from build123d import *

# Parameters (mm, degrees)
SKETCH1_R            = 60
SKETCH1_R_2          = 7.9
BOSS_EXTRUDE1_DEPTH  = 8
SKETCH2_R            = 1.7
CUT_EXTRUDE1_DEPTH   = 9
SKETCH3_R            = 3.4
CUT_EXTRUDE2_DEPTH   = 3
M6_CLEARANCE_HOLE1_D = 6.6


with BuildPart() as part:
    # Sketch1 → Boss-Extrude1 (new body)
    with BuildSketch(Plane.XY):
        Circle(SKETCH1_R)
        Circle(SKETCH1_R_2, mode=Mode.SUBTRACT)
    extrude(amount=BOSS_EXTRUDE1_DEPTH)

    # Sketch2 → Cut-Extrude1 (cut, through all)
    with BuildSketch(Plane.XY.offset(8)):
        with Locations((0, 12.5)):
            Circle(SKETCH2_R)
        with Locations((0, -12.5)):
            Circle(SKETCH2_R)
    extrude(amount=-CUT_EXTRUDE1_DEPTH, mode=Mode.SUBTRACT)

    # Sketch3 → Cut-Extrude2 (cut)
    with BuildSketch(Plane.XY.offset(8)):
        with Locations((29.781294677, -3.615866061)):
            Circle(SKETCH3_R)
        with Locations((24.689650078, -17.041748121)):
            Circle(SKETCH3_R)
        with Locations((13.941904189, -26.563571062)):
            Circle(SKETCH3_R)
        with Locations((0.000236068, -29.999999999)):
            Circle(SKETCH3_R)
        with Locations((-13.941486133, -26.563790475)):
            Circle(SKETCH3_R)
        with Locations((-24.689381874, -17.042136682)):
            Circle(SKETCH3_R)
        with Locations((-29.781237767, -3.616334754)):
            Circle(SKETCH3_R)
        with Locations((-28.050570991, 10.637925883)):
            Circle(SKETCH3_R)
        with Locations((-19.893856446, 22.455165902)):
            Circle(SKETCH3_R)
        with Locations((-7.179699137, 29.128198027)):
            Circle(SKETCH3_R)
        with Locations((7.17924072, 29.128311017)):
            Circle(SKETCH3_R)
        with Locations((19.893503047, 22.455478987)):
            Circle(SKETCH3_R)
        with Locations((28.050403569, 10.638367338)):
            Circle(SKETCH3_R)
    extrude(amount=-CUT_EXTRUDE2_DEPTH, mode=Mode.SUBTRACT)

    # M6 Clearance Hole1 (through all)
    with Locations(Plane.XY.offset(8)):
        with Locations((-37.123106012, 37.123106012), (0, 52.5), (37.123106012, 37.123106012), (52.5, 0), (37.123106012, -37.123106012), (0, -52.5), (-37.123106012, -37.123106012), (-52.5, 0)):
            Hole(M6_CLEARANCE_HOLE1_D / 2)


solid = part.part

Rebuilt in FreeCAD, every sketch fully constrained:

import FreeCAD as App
import Part
import Sketcher

V = App.Vector

doc = App.newDocument("Part")
params = doc.addObject("Spreadsheet::Sheet", "Params")
for row, (alias, value) in enumerate([
    ("sketch1_diameter", "120 mm"),
    ("sketch1_diameter2", "15.8 mm"),
    ("pad1_length", "8 mm"),
    ("sketch2_diameter", "3.4 mm"),
    ("sketch3_diameter", "6.8 mm"),
    ("pocket2_length", "3 mm"),
    ("sketch4_diameter", "6.6 mm"),
    ("hole_diameter", "6.6 mm"),
], start=1):
    params.set(f"A{row}", alias)
    params.set(f"B{row}", "=" + value)
    params.setAlias(f"B{row}", alias)

body = doc.addObject("PartDesign::Body", "Body")

# Sketch on XY plane
sketch1 = doc.addObject("Sketcher::SketchObject", "Sketch")
body.addObject(sketch1)
sketch1.AttachmentSupport = (doc.XY_Plane, [""])
sketch1.MapMode = "FlatFace"
sketch1.addGeometry([
    Part.Circle(V(0, 0, 0), V(0, 0, 1), 60),
    Part.Circle(V(0, 0, 0), V(0, 0, 1), 7.9),
], False)
sketch1.addConstraint([
    Sketcher.Constraint("Coincident", 0, 3, -1, 1),
    Sketcher.Constraint("Coincident", 1, 3, -1, 1),
    Sketcher.Constraint("Diameter", 0, 120.0),
    Sketcher.Constraint("Diameter", 1, 15.8),
])
sketch1.setExpression("Constraints[2]", "Params.sketch1_diameter")
sketch1.setExpression("Constraints[3]", "Params.sketch1_diameter2")
pad1 = doc.addObject("PartDesign::Pad", "Pad")
body.addObject(pad1)
pad1.Profile = sketch1
pad1.setExpression("Length", "Params.pad1_length")

# Sketch on XY plane
sketch2 = doc.addObject("Sketcher::SketchObject", "Sketch001")
body.addObject(sketch2)
sketch2.AttachmentSupport = (doc.XY_Plane, [""])
sketch2.MapMode = "FlatFace"
sketch2.AttachmentOffset = App.Placement(V(0, 0, 8), App.Rotation())
sketch2.addGeometry([
    Part.Circle(V(0, 12.5, 0), V(0, 0, 1), 1.7),
    Part.Circle(V(0, -12.5, 0), V(0, 0, 1), 1.7),
], False)
sketch2.addConstraint([
    Sketcher.Constraint("Equal", 0, 1),
    Sketcher.Constraint("Symmetric", 0, 3, 1, 3, -1, 1),
    Sketcher.Constraint("PointOnObject", 0, 3, -2),
    Sketcher.Constraint("Diameter", 0, 3.4),
    Sketcher.Constraint("DistanceY", 1, 3, 0, 3, 25.0),
])
sketch2.setExpression("Constraints[3]", "Params.sketch2_diameter")
pocket1 = doc.addObject("PartDesign::Pocket", "Pocket")
body.addObject(pocket1)
pocket1.Profile = sketch2
pocket1.Type = "ThroughAll"

# Sketch on XY plane
sketch3 = doc.addObject("Sketcher::SketchObject", "Sketch002")
body.addObject(sketch3)
sketch3.AttachmentSupport = (doc.XY_Plane, [""])
sketch3.MapMode = "FlatFace"
sketch3.AttachmentOffset = App.Placement(V(0, 0, 8), App.Rotation())
sketch3.addGeometry([
    Part.Circle(V(29.781295, -3.615866, 0), V(0, 0, 1), 3.4),  # 0
    Part.Circle(V(24.68965, -17.041748, 0), V(0, 0, 1), 3.4),  # 1
    Part.Circle(V(13.941904, -26.563571, 0), V(0, 0, 1), 3.4),  # 2
    Part.Circle(V(0.000236, -30, 0), V(0, 0, 1), 3.4),  # 3
    Part.Circle(V(-13.941486, -26.56379, 0), V(0, 0, 1), 3.4),  # 4
    Part.Circle(V(-24.689382, -17.042137, 0), V(0, 0, 1), 3.4),  # 5
    Part.Circle(V(-29.781238, -3.616335, 0), V(0, 0, 1), 3.4),  # 6
    Part.Circle(V(-28.050571, 10.637926, 0), V(0, 0, 1), 3.4),  # 7
    Part.Circle(V(-19.893856, 22.455166, 0), V(0, 0, 1), 3.4),  # 8
    Part.Circle(V(-7.179699, 29.128198, 0), V(0, 0, 1), 3.4),  # 9
    Part.Circle(V(7.179241, 29.128311, 0), V(0, 0, 1), 3.4),  # 10
    Part.Circle(V(19.893503, 22.455479, 0), V(0, 0, 1), 3.4),  # 11
    Part.Circle(V(28.050404, 10.638367, 0), V(0, 0, 1), 3.4),  # 12
], False)
sketch3.addConstraint([
    Sketcher.Constraint("Equal", 0, 1),
    Sketcher.Constraint("Equal", 1, 2),
    Sketcher.Constraint("Equal", 2, 3),
    Sketcher.Constraint("Equal", 3, 4),
    Sketcher.Constraint("Equal", 4, 5),
    Sketcher.Constraint("Equal", 5, 6),
    Sketcher.Constraint("Equal", 6, 7),
    Sketcher.Constraint("Equal", 7, 8),
    Sketcher.Constraint("Equal", 8, 9),
    Sketcher.Constraint("Equal", 9, 10),
    Sketcher.Constraint("Equal", 10, 11),
    Sketcher.Constraint("Equal", 11, 12),
    Sketcher.Constraint("Diameter", 0, 6.8),
    Sketcher.Constraint("DistanceY", 3, 3, -1, 1, 30.0),
    Sketcher.Constraint("DistanceX", 9, 3, -1, 1, 7.179699),
    Sketcher.Constraint("DistanceY", -1, 1, 9, 3, 29.128198),
    Sketcher.Constraint("DistanceY", 5, 3, 6, 3, 13.425802),
    Sketcher.Constraint("DistanceY", 6, 3, 8, 3, 26.071501),
    Sketcher.Constraint("DistanceX", 11, 3, 12, 3, 8.156901),
    Sketcher.Constraint("DistanceX", 2, 3, 12, 3, 14.108499),
    Sketcher.Constraint("DistanceX", -1, 1, 1, 3, 24.68965),
    Sketcher.Constraint("DistanceY", 1, 3, -1, 1, 17.041748),
    Sketcher.Constraint("DistanceY", 2, 3, -1, 1, 26.563571),
    Sketcher.Constraint("DistanceY", 4, 3, -1, 1, 26.56379),
    Sketcher.Constraint("DistanceX", 5, 3, -1, 1, 24.689382),
    Sketcher.Constraint("DistanceX", 7, 3, -1, 1, 28.050571),
    Sketcher.Constraint("DistanceX", -1, 1, 10, 3, 7.179241),
    Sketcher.Constraint("DistanceY", -1, 1, 10, 3, 29.128311),
    Sketcher.Constraint("DistanceY", -1, 1, 11, 3, 22.455479),
    Sketcher.Constraint("DistanceX", 2, 3, 0, 3, 15.83939),
    Sketcher.Constraint("DistanceX", 3, 3, 2, 3, 13.941668),
    Sketcher.Constraint("DistanceX", 4, 3, 2, 3, 27.88339),
    Sketcher.Constraint("DistanceY", 5, 3, 1, 3, 0.000389),
    Sketcher.Constraint("DistanceY", 5, 3, 0, 3, 13.426271),
    Sketcher.Constraint("DistanceX", 6, 3, 4, 3, 15.839752),
    Sketcher.Constraint("DistanceY", 6, 3, 7, 3, 14.254261),
    Sketcher.Constraint("DistanceX", 6, 3, 8, 3, 9.887381),
    Sketcher.Constraint("DistanceX", 6, 3, 9, 3, 22.601539),
    Sketcher.Constraint("DistanceY", 12, 3, 11, 3, 11.817112),
])
sketch3.setExpression("Constraints[12]", "Params.sketch3_diameter")
pocket2 = doc.addObject("PartDesign::Pocket", "Pocket001")
body.addObject(pocket2)
pocket2.Profile = sketch3
pocket2.setExpression("Length", "Params.pocket2_length")

# Sketch on XY plane
sketch4 = doc.addObject("Sketcher::SketchObject", "Sketch003")
body.addObject(sketch4)
sketch4.AttachmentSupport = (doc.XY_Plane, [""])
sketch4.MapMode = "FlatFace"
sketch4.AttachmentOffset = App.Placement(V(0, 0, 8), App.Rotation())
sketch4.addGeometry([
    Part.Circle(V(-37.123106, 37.123106, 0), V(0, 0, 1), 3.3),  # 0
    Part.Circle(V(0, 52.5, 0), V(0, 0, 1), 3.3),  # 1
    Part.Circle(V(37.123106, 37.123106, 0), V(0, 0, 1), 3.3),  # 2
    Part.Circle(V(52.5, 0, 0), V(0, 0, 1), 3.3),  # 3
    Part.Circle(V(37.123106, -37.123106, 0), V(0, 0, 1), 3.3),  # 4
    Part.Circle(V(0, -52.5, 0), V(0, 0, 1), 3.3),  # 5
    Part.Circle(V(-37.123106, -37.123106, 0), V(0, 0, 1), 3.3),  # 6
    Part.Circle(V(-52.5, 0, 0), V(0, 0, 1), 3.3),  # 7
], False)
sketch4.addConstraint([
    Sketcher.Constraint("Equal", 0, 1),
    Sketcher.Constraint("Equal", 1, 2),
    Sketcher.Constraint("Equal", 2, 3),
    Sketcher.Constraint("Equal", 3, 4),
    Sketcher.Constraint("Equal", 4, 5),
    Sketcher.Constraint("Equal", 5, 6),
    Sketcher.Constraint("Equal", 6, 7),
    Sketcher.Constraint("Symmetric", 0, 3, 4, 3, -1, 1),
    Sketcher.Constraint("Symmetric", 1, 3, 5, 3, -1, 1),
    Sketcher.Constraint("Symmetric", 2, 3, 6, 3, -1, 1),
    Sketcher.Constraint("Symmetric", 3, 3, 7, 3, -1, 1),
    Sketcher.Constraint("Symmetric", 0, 3, 2, 3, -2),
    Sketcher.Constraint("PointOnObject", 1, 3, -2),
    Sketcher.Constraint("PointOnObject", 3, 3, -1),
    Sketcher.Constraint("Diameter", 0, 6.6),
    Sketcher.Constraint("DistanceY", 5, 3, 1, 3, 105.0),
    Sketcher.Constraint("DistanceX", -1, 1, 3, 3, 52.5),
    Sketcher.Constraint("DistanceX", 0, 3, -1, 1, 37.123106),
    Sketcher.Constraint("DistanceY", -1, 1, 0, 3, 37.123106),
])
sketch4.setExpression("Constraints[14]", "Params.sketch4_diameter")
doc.recompute()
hole = doc.addObject("PartDesign::Hole", "Hole")
body.addObject(hole)
hole.Profile = sketch4
hole.ThreadType = "None"
hole.setExpression("Diameter", "Params.hole_diameter")
hole.DepthType = "ThroughAll"

doc.recompute()
